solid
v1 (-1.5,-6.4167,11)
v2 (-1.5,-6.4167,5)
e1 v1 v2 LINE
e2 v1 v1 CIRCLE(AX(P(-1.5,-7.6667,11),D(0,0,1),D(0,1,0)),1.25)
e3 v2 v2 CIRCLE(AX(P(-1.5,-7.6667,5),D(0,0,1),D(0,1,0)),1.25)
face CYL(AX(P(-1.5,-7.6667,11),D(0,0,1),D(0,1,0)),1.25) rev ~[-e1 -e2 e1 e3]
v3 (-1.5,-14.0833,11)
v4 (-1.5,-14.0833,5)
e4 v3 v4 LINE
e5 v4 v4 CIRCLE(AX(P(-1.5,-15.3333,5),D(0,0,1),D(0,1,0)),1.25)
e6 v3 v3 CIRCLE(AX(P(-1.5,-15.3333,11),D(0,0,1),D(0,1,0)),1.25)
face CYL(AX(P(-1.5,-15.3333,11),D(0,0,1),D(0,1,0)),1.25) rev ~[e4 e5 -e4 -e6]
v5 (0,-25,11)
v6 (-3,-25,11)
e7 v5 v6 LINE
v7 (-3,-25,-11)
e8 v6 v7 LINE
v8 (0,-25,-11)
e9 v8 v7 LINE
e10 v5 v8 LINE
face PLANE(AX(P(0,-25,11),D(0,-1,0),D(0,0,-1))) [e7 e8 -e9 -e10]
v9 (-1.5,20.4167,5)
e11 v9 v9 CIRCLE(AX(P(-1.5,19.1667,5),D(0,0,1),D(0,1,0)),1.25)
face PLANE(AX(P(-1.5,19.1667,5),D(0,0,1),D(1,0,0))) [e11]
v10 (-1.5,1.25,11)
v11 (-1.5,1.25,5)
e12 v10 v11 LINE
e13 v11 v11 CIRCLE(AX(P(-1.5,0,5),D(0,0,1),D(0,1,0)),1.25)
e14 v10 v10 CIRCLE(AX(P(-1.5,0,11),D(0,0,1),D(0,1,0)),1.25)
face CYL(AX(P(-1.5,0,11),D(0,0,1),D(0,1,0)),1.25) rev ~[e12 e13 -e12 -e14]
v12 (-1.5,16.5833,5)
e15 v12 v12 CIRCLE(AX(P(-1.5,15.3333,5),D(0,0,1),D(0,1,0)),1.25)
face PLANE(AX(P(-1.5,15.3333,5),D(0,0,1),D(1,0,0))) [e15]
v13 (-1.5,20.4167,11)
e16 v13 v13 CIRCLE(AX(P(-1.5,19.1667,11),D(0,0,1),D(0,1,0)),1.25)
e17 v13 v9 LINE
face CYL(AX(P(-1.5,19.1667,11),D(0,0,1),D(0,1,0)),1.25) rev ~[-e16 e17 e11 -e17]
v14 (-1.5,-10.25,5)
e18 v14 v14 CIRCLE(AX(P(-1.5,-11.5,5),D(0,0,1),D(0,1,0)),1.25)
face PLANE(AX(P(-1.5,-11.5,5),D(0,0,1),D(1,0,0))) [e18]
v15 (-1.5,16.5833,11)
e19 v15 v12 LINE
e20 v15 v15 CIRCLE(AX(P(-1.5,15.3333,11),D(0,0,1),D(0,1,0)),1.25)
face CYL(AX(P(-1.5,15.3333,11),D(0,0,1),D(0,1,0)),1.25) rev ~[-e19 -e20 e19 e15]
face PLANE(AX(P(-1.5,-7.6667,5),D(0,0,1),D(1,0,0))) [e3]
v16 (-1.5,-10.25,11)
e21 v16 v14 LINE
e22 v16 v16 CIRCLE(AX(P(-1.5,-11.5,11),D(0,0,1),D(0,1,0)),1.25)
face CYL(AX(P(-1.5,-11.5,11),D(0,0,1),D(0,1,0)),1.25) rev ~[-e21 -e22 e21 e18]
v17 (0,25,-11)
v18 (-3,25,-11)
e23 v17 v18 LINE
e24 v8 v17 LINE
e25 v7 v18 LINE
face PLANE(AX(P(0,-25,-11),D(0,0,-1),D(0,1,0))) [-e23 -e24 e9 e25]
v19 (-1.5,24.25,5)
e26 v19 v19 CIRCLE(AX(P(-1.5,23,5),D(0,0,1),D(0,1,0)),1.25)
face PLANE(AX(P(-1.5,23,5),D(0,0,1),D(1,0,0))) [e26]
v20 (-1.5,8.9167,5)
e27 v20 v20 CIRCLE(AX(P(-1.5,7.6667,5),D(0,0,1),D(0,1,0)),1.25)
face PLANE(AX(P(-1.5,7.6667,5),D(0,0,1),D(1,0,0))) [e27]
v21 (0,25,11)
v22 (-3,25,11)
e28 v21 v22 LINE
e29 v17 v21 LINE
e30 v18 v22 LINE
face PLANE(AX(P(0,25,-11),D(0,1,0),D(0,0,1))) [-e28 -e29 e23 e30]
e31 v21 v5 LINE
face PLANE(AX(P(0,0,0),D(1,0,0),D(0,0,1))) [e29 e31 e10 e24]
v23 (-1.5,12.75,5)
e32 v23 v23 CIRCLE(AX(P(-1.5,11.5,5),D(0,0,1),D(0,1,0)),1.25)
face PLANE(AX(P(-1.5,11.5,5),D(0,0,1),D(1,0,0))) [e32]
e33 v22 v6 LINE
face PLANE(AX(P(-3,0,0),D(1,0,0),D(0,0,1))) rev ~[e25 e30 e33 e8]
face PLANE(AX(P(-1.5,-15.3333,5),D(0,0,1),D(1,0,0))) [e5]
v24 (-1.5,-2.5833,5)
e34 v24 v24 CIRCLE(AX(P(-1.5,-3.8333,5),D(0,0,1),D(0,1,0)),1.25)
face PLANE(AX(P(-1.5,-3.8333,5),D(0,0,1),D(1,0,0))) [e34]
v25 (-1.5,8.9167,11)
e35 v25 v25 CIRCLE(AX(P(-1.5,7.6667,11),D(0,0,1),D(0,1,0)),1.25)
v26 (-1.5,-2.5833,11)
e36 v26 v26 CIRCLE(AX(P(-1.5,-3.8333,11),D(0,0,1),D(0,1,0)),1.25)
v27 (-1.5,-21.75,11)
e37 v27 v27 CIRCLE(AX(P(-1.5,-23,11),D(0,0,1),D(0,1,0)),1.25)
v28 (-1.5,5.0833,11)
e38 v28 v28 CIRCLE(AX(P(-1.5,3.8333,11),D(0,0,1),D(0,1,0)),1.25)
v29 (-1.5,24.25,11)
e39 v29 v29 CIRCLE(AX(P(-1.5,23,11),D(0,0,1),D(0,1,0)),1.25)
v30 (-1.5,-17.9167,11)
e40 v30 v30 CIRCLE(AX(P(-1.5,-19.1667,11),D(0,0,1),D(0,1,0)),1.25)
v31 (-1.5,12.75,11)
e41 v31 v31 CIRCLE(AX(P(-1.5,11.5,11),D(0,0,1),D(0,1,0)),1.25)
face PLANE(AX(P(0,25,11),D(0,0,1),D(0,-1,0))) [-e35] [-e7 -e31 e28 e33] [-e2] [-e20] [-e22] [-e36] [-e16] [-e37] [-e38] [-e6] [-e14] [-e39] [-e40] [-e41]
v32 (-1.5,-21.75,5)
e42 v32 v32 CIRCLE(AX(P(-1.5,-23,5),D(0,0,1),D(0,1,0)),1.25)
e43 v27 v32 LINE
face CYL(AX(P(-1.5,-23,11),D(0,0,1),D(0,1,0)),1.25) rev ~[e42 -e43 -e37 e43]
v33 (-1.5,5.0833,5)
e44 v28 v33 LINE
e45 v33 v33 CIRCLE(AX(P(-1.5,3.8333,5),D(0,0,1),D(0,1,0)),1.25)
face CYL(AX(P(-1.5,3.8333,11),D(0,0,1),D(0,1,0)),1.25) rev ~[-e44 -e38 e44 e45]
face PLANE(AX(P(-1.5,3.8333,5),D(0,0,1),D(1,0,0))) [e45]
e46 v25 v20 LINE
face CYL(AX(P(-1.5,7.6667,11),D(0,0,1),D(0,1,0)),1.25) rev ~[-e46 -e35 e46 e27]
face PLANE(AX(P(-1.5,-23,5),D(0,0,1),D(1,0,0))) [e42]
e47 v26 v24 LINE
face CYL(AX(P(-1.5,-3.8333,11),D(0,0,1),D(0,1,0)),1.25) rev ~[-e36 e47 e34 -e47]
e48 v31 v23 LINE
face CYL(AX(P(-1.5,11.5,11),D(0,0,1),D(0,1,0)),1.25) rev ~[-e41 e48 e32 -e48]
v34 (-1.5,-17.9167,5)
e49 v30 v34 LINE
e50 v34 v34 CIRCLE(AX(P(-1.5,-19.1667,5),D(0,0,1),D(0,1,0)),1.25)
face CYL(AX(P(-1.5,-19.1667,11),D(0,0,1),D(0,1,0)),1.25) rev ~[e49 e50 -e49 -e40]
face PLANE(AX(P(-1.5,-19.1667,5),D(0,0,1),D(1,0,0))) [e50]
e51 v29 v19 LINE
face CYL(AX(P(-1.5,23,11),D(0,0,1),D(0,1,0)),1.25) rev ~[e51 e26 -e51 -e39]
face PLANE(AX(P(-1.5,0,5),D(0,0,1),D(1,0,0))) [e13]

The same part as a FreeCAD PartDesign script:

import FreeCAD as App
import Part
import Sketcher
Q = App.Units.Quantity


def add_polygon(sketch, points):
    """Adds a closed chain of lines whose ends are joined by coincident constraints."""
    first, n = sketch.GeometryCount, len(points)
    for a, b in zip(points, points[1:] + points[:1]):
        sketch.addGeometry(Part.LineSegment(App.Vector(*a, 0), App.Vector(*b, 0)), False)
    for i in range(n):
        sketch.addConstraint(Sketcher.Constraint("Coincident", first + i, 2, first + (i + 1) % n, 1))

doc = App.newDocument("Part")
body = doc.addObject("PartDesign::Body", "Body")

# Sketch on YZ plane
sketch1 = body.newObject("Sketcher::SketchObject", "Sketch")
sketch1.AttachmentSupport = (doc.getObject("YZ_Plane"), [""])
sketch1.MapMode = "FlatFace"
add_polygon(sketch1, [(-25, 11), (-25, -11), (25, -11), (25, 11)])  # lines 0-3
sketch1.addConstraint(Sketcher.Constraint("Vertical", 0))
sketch1.addConstraint(Sketcher.Constraint("Horizontal", 1))
sketch1.addConstraint(Sketcher.Constraint("Vertical", 2))
sketch1.addConstraint(Sketcher.Constraint("Horizontal", 3))
sketch1.addConstraint(Sketcher.Constraint("Symmetric", 0, 2, 2, 2, -1, 1))
sketch1.addConstraint(Sketcher.Constraint("DistanceX", 1, 1, 1, 2, Q("50 mm")))
sketch1.addConstraint(Sketcher.Constraint("DistanceY", 0, 2, 0, 1, Q("22 mm")))
pad1 = body.newObject("PartDesign::Pad", "Pad")
pad1.Profile = sketch1
pad1.Length = 3
pad1.Reversed = True

# Sketch on XY plane
sketch2 = body.newObject("Sketcher::SketchObject", "Sketch001")
sketch2.AttachmentSupport = (doc.getObject("XY_Plane"), [""])
sketch2.MapMode = "FlatFace"
sketch2.AttachmentOffset = App.Placement(App.Vector(0, 0, 11), App.Rotation())
sketch2.addGeometry(Part.Circle(App.Vector(-1.5, -23, 0), App.Vector(0, 0, 1), 1.2), False)
sketch2.addGeometry(Part.Circle(App.Vector(-1.5, -19.2, 0), App.Vector(0, 0, 1), 1.2), False)
sketch2.addGeometry(Part.Circle(App.Vector(-1.5, -15.3, 0), App.Vector(0, 0, 1), 1.2), False)
sketch2.addGeometry(Part.Circle(App.Vector(-1.5, -11.5, 0), App.Vector(0, 0, 1), 1.2), False)
sketch2.addGeometry(Part.Circle(App.Vector(-1.5, -7.7, 0), App.Vector(0, 0, 1), 1.2), False)
sketch2.addGeometry(Part.Circle(App.Vector(-1.5, -3.8, 0), App.Vector(0, 0, 1), 1.2), False)
sketch2.addGeometry(Part.Circle(App.Vector(-1.5, 0, 0), App.Vector(0, 0, 1), 1.2), False)
sketch2.addGeometry(Part.Circle(App.Vector(-1.5, 3.8, 0), App.Vector(0, 0, 1), 1.2), False)
sketch2.addGeometry(Part.Circle(App.Vector(-1.5, 7.7, 0), App.Vector(0, 0, 1), 1.2), False)
sketch2.addGeometry(Part.Circle(App.Vector(-1.5, 11.5, 0), App.Vector(0, 0, 1), 1.2), False)
sketch2.addGeometry(Part.Circle(App.Vector(-1.5, 15.3, 0), App.Vector(0, 0, 1), 1.2), False)
sketch2.addGeometry(Part.Circle(App.Vector(-1.5, 19.2, 0), App.Vector(0, 0, 1), 1.2), False)
sketch2.addGeometry(Part.Circle(App.Vector(-1.5, 23, 0), App.Vector(0, 0, 1), 1.2), False)
sketch2.addConstraint(Sketcher.Constraint("Equal", 0, 1))
sketch2.addConstraint(Sketcher.Constraint("Equal", 1, 2))
sketch2.addConstraint(Sketcher.Constraint("Equal", 2, 3))
sketch2.addConstraint(Sketcher.Constraint("Equal", 3, 4))
sketch2.addConstraint(Sketcher.Constraint("Equal", 4, 5))
sketch2.addConstraint(Sketcher.Constraint("Equal", 5, 6))
sketch2.addConstraint(Sketcher.Constraint("Equal", 6, 7))
sketch2.addConstraint(Sketcher.Constraint("Equal", 7, 8))
sketch2.addConstraint(Sketcher.Constraint("Equal", 8, 9))
sketch2.addConstraint(Sketcher.Constraint("Equal", 9, 10))
sketch2.addConstraint(Sketcher.Constraint("Equal", 10, 11))
sketch2.addConstraint(Sketcher.Constraint("Equal", 11, 12))
sketch2.addConstraint(Sketcher.Constraint("Symmetric", 5, 3, 7, 3, -1))
sketch2.addConstraint(Sketcher.Constraint("Symmetric", 4, 3, 8, 3, -1))
sketch2.addConstraint(Sketcher.Constraint("Symmetric", 3, 3, 9, 3, -1))
sketch2.addConstraint(Sketcher.Constraint("Symmetric", 2, 3, 10, 3, -1))
sketch2.addConstraint(Sketcher.Constraint("Symmetric", 1, 3, 11, 3, -1))
sketch2.addConstraint(Sketcher.Constraint("Symmetric", 0, 3, 12, 3, -1))
sketch2.addConstraint(Sketcher.Constraint("PointOnObject", 6, 3, -1))
sketch2.addConstraint(Sketcher.Constraint("Vertical", 0, 3, 1, 3))
sketch2.addConstraint(Sketcher.Constraint("Vertical", 1, 3, 2, 3))
sketch2.addConstraint(Sketcher.Constraint("Vertical", 2, 3, 3, 3))
sketch2.addConstraint(Sketcher.Constraint("Vertical", 3, 3, 4, 3))
sketch2.addConstraint(Sketcher.Constraint("Vertical", 4, 3, 5, 3))
sketch2.addConstraint(Sketcher.Constraint("Vertical", 5, 3, 6, 3))
sketch2.addConstraint(Sketcher.Constraint("Diameter", 0, Q("2.5 mm")))
sketch2.addConstraint(Sketcher.Constraint("DistanceY", 0, 3, -1, 1, Q("23 mm")))
sketch2.addConstraint(Sketcher.Constraint("DistanceX", 0, 3, -1, 1, Q("1.5 mm")))
sketch2.addConstraint(Sketcher.Constraint("DistanceY", 3, 3, -1, 1, Q("11.5 mm")))
sketch2.addConstraint(Sketcher.Constraint("DistanceY", 1, 3, 4, 3, Q("11.5 mm")))
sketch2.addConstraint(Sketcher.Constraint("DistanceY", 2, 3, 5, 3, Q("11.5 mm")))
sketch2.addConstraint(Sketcher.Constraint("DistanceY", 4, 3, 7, 3, Q("11.5 mm")))
sketch2.addConstraint(Sketcher.Constraint("DistanceY", 1, 3, -1, 1, Q("19.1667 mm")))
pocket1 = body.newObject("PartDesign::Pocket", "Pocket")
pocket1.Profile = sketch2
pocket1.Length = 6

doc.recompute()
